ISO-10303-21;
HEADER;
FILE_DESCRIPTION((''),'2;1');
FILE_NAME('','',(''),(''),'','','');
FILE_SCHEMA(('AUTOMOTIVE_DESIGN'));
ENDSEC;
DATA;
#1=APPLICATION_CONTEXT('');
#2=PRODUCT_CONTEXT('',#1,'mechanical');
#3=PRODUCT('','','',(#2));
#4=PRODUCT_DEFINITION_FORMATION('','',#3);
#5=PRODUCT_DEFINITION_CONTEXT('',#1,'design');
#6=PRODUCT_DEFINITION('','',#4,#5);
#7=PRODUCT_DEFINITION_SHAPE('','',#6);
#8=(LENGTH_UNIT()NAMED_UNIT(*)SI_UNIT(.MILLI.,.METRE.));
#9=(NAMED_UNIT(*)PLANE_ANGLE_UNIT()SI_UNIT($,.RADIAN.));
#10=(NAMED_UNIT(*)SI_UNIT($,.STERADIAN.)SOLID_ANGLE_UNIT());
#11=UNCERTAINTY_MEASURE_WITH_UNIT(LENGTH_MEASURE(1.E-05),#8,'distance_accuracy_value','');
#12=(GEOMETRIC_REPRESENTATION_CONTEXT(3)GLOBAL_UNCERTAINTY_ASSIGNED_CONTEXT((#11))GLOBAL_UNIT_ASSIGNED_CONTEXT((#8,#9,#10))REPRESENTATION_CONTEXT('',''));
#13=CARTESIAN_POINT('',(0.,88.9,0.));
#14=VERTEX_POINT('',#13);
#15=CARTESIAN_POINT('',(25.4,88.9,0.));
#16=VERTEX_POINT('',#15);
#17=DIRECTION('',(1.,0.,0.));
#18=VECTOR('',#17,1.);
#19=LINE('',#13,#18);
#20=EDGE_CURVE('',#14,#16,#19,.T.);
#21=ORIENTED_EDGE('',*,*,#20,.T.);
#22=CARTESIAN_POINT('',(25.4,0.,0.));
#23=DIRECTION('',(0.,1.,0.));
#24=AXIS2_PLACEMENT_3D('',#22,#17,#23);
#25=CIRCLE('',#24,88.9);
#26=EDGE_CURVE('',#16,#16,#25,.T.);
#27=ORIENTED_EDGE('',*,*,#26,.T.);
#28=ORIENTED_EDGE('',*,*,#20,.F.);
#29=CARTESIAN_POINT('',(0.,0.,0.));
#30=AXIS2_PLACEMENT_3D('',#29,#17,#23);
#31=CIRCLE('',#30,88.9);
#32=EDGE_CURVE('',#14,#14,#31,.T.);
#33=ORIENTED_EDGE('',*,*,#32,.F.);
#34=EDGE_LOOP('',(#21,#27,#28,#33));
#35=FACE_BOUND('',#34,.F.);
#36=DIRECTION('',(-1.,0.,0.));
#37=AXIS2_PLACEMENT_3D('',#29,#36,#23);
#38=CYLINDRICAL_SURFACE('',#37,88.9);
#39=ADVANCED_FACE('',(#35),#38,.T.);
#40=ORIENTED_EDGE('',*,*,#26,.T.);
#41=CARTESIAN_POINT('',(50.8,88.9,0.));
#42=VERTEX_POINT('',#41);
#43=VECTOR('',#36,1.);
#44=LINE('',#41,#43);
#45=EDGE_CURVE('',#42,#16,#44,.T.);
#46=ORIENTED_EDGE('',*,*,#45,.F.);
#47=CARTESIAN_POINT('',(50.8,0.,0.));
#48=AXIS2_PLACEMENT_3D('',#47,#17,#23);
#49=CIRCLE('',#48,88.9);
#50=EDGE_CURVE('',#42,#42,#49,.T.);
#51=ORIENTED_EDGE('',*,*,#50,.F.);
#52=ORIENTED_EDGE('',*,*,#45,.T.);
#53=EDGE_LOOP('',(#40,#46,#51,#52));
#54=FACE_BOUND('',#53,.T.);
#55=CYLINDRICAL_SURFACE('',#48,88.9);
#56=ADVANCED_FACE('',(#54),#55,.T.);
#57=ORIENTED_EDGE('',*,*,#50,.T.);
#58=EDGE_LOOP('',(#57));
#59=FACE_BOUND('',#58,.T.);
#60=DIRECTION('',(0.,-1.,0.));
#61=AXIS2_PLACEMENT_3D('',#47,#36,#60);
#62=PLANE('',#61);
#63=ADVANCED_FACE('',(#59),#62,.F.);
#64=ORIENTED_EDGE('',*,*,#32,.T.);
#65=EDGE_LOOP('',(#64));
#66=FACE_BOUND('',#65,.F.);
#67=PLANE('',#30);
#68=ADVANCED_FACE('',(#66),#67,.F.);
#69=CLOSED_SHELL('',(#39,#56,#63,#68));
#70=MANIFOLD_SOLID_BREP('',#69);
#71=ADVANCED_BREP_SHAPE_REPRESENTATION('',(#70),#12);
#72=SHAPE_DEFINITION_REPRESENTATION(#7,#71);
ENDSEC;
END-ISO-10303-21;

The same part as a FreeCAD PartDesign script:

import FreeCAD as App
import Part
import Sketcher

V = App.Vector
Q = App.Units.Quantity

doc = App.newDocument("Part")
body = doc.addObject("PartDesign::Body", "Body")

# Sketch on YZ plane
sketch1 = body.newObject("Sketcher::SketchObject", "Sketch")
sketch1.AttachmentSupport = (doc.getObject("YZ_Plane"), [""])
sketch1.MapMode = "FlatFace"
sketch1.addGeometry(Part.Circle(V(0, 0, 0), V(0, 0, 1), 89), False)
sketch1.addConstraint([
    Sketcher.Constraint("Coincident", 0, 3, -1, 1),
    Sketcher.Constraint("Diameter", 0, Q("7 in")),
])
pad1 = body.newObject("PartDesign::Pad", "Pad")
pad1.Profile = sketch1
pad1.Length = Q("1 in")
body2 = doc.addObject("PartDesign::Body", "Body001")
doc.recompute()

body2.BaseFeature = body
doc.recompute()

mirroring = doc.addObject("Part::Mirroring", "Mirroring")
mirroring.Source = body
mirroring.Base = V(25.4, 0, 0)
mirroring.Normal = V(1, 0, 0)
body3 = doc.addObject("PartDesign::Body", "Body002")
body3.BaseFeature = mirroring
boolean = body2.newObject("PartDesign::Boolean", "Boolean")
boolean.Type = "Fuse"
boolean.addObjects([body3])
doc.recompute()
mirroring.Visibility = False

doc.recompute()
